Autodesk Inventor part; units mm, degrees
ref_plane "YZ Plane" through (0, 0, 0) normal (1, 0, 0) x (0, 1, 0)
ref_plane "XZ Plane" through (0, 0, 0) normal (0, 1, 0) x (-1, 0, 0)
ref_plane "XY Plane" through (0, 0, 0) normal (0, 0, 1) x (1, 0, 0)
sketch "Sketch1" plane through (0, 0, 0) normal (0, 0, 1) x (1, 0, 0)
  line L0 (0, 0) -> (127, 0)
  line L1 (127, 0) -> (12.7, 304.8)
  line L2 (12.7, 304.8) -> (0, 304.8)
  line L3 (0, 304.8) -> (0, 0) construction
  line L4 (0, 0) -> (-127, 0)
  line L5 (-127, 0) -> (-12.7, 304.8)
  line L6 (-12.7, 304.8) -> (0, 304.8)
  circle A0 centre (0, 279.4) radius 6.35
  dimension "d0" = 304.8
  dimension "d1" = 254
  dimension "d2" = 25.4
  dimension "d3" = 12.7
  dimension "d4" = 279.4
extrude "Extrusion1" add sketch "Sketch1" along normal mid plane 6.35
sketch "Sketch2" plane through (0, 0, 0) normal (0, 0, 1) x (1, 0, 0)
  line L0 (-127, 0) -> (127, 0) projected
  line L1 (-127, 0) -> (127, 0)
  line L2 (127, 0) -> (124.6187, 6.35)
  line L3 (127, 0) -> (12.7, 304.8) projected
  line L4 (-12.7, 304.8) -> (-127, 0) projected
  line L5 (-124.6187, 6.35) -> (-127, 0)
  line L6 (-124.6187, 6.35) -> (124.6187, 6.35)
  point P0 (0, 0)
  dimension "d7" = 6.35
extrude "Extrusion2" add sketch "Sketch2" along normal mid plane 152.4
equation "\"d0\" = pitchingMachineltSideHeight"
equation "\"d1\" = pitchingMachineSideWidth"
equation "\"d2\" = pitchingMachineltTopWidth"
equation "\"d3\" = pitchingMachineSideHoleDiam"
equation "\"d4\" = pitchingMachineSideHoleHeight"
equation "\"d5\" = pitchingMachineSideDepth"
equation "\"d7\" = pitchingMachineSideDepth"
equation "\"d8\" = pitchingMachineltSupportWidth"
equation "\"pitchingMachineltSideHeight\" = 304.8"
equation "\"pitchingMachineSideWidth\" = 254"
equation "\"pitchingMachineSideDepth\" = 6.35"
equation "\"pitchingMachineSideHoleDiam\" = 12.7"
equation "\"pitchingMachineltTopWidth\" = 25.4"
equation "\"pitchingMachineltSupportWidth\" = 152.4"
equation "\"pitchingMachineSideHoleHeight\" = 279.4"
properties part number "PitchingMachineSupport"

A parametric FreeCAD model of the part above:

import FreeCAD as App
import Part
import Sketcher
from FreeCAD import Vector
Q = App.Units.Quantity

doc = App.newDocument("Part")
body = doc.addObject("PartDesign::Body", "Body")

# Sketch on XY plane
sketch1 = body.newObject("Sketcher::SketchObject", "Sketch")
sketch1.AttachmentSupport = (doc.getObject("XY_Plane"), [""])
sketch1.MapMode = "FlatFace"
sketch1.addGeometry([
    Part.LineSegment(Vector(-127, 0, 0), Vector(127, 0, 0)),  # 0
    Part.LineSegment(Vector(127, 0, 0), Vector(13, 305, 0)),  # 1
    Part.LineSegment(Vector(13, 305, 0), Vector(-13, 305, 0)),  # 2
    Part.LineSegment(Vector(-13, 305, 0), Vector(-127, 0, 0)),  # 3
    Part.Circle(Vector(0, 279, 0), Vector(0, 0, 1), 6),  # 4
], False)
sketch1.addConstraint([
    Sketcher.Constraint("Coincident", 0, 2, 1, 1),
    Sketcher.Constraint("Coincident", 1, 2, 2, 1),
    Sketcher.Constraint("Coincident", 2, 2, 3, 1),
    Sketcher.Constraint("Coincident", 3, 2, 0, 1),
    Sketcher.Constraint("Horizontal", 0),
    Sketcher.Constraint("Horizontal", 2),
    Sketcher.Constraint("Symmetric", 0, 2, 3, 2, -1, 1),
    Sketcher.Constraint("PointOnObject", 4, 3, -2),
    Sketcher.Constraint("Equal", 1, 3),
    Sketcher.Constraint("Diameter", 4, Q("0.5 in")),
    Sketcher.Constraint("DistanceX", 0, 1, 0, 2, Q("10 in")),
    Sketcher.Constraint("DistanceX", 2, 2, 2, 1, Q("1 in")),
    Sketcher.Constraint("DistanceY", -1, 1, 4, 3, Q("11 in")),
    Sketcher.Constraint("DistanceY", -1, 1, 1, 2, Q("12 in")),
])
pad1 = body.newObject("PartDesign::Pad", "Pad")
pad1.Profile = sketch1
pad1.Length = Q("0.25 in")
pad1.Midplane = True

# Sketch on XY plane
sketch2 = body.newObject("Sketcher::SketchObject", "Sketch001")
sketch2.AttachmentSupport = (doc.getObject("XY_Plane"), [""])
sketch2.MapMode = "FlatFace"
sketch2.addGeometry([
    Part.LineSegment(Vector(-125, 6, 0), Vector(-127, 0, 0)),
    Part.LineSegment(Vector(-127, 0, 0), Vector(127, 0, 0)),
    Part.LineSegment(Vector(127, 0, 0), Vector(125, 6, 0)),
    Part.LineSegment(Vector(125, 6, 0), Vector(-125, 6, 0)),
], False)
sketch2.addConstraint([
    Sketcher.Constraint("Coincident", 0, 2, 1, 1),
    Sketcher.Constraint("Coincident", 1, 2, 2, 1),
    Sketcher.Constraint("Coincident", 2, 2, 3, 1),
    Sketcher.Constraint("Coincident", 3, 2, 0, 1),
    Sketcher.Constraint("Horizontal", 1),
    Sketcher.Constraint("Horizontal", 3),
    Sketcher.Constraint("Symmetric", 0, 2, 1, 2, -1, 1),
    Sketcher.Constraint("Equal", 0, 2),
    Sketcher.Constraint("DistanceX", 1, 1, 1, 2, Q("10 in")),
    Sketcher.Constraint("DistanceY", -1, 1, 2, 2, Q("0.25 in")),
    Sketcher.Constraint("DistanceX", 3, 2, 3, 1, Q("9.8125 in")),
])
pad2 = body.newObject("PartDesign::Pad", "Pad001")
pad2.Profile = sketch2
pad2.Length = Q("6 in")
pad2.Midplane = True

doc.recompute()
